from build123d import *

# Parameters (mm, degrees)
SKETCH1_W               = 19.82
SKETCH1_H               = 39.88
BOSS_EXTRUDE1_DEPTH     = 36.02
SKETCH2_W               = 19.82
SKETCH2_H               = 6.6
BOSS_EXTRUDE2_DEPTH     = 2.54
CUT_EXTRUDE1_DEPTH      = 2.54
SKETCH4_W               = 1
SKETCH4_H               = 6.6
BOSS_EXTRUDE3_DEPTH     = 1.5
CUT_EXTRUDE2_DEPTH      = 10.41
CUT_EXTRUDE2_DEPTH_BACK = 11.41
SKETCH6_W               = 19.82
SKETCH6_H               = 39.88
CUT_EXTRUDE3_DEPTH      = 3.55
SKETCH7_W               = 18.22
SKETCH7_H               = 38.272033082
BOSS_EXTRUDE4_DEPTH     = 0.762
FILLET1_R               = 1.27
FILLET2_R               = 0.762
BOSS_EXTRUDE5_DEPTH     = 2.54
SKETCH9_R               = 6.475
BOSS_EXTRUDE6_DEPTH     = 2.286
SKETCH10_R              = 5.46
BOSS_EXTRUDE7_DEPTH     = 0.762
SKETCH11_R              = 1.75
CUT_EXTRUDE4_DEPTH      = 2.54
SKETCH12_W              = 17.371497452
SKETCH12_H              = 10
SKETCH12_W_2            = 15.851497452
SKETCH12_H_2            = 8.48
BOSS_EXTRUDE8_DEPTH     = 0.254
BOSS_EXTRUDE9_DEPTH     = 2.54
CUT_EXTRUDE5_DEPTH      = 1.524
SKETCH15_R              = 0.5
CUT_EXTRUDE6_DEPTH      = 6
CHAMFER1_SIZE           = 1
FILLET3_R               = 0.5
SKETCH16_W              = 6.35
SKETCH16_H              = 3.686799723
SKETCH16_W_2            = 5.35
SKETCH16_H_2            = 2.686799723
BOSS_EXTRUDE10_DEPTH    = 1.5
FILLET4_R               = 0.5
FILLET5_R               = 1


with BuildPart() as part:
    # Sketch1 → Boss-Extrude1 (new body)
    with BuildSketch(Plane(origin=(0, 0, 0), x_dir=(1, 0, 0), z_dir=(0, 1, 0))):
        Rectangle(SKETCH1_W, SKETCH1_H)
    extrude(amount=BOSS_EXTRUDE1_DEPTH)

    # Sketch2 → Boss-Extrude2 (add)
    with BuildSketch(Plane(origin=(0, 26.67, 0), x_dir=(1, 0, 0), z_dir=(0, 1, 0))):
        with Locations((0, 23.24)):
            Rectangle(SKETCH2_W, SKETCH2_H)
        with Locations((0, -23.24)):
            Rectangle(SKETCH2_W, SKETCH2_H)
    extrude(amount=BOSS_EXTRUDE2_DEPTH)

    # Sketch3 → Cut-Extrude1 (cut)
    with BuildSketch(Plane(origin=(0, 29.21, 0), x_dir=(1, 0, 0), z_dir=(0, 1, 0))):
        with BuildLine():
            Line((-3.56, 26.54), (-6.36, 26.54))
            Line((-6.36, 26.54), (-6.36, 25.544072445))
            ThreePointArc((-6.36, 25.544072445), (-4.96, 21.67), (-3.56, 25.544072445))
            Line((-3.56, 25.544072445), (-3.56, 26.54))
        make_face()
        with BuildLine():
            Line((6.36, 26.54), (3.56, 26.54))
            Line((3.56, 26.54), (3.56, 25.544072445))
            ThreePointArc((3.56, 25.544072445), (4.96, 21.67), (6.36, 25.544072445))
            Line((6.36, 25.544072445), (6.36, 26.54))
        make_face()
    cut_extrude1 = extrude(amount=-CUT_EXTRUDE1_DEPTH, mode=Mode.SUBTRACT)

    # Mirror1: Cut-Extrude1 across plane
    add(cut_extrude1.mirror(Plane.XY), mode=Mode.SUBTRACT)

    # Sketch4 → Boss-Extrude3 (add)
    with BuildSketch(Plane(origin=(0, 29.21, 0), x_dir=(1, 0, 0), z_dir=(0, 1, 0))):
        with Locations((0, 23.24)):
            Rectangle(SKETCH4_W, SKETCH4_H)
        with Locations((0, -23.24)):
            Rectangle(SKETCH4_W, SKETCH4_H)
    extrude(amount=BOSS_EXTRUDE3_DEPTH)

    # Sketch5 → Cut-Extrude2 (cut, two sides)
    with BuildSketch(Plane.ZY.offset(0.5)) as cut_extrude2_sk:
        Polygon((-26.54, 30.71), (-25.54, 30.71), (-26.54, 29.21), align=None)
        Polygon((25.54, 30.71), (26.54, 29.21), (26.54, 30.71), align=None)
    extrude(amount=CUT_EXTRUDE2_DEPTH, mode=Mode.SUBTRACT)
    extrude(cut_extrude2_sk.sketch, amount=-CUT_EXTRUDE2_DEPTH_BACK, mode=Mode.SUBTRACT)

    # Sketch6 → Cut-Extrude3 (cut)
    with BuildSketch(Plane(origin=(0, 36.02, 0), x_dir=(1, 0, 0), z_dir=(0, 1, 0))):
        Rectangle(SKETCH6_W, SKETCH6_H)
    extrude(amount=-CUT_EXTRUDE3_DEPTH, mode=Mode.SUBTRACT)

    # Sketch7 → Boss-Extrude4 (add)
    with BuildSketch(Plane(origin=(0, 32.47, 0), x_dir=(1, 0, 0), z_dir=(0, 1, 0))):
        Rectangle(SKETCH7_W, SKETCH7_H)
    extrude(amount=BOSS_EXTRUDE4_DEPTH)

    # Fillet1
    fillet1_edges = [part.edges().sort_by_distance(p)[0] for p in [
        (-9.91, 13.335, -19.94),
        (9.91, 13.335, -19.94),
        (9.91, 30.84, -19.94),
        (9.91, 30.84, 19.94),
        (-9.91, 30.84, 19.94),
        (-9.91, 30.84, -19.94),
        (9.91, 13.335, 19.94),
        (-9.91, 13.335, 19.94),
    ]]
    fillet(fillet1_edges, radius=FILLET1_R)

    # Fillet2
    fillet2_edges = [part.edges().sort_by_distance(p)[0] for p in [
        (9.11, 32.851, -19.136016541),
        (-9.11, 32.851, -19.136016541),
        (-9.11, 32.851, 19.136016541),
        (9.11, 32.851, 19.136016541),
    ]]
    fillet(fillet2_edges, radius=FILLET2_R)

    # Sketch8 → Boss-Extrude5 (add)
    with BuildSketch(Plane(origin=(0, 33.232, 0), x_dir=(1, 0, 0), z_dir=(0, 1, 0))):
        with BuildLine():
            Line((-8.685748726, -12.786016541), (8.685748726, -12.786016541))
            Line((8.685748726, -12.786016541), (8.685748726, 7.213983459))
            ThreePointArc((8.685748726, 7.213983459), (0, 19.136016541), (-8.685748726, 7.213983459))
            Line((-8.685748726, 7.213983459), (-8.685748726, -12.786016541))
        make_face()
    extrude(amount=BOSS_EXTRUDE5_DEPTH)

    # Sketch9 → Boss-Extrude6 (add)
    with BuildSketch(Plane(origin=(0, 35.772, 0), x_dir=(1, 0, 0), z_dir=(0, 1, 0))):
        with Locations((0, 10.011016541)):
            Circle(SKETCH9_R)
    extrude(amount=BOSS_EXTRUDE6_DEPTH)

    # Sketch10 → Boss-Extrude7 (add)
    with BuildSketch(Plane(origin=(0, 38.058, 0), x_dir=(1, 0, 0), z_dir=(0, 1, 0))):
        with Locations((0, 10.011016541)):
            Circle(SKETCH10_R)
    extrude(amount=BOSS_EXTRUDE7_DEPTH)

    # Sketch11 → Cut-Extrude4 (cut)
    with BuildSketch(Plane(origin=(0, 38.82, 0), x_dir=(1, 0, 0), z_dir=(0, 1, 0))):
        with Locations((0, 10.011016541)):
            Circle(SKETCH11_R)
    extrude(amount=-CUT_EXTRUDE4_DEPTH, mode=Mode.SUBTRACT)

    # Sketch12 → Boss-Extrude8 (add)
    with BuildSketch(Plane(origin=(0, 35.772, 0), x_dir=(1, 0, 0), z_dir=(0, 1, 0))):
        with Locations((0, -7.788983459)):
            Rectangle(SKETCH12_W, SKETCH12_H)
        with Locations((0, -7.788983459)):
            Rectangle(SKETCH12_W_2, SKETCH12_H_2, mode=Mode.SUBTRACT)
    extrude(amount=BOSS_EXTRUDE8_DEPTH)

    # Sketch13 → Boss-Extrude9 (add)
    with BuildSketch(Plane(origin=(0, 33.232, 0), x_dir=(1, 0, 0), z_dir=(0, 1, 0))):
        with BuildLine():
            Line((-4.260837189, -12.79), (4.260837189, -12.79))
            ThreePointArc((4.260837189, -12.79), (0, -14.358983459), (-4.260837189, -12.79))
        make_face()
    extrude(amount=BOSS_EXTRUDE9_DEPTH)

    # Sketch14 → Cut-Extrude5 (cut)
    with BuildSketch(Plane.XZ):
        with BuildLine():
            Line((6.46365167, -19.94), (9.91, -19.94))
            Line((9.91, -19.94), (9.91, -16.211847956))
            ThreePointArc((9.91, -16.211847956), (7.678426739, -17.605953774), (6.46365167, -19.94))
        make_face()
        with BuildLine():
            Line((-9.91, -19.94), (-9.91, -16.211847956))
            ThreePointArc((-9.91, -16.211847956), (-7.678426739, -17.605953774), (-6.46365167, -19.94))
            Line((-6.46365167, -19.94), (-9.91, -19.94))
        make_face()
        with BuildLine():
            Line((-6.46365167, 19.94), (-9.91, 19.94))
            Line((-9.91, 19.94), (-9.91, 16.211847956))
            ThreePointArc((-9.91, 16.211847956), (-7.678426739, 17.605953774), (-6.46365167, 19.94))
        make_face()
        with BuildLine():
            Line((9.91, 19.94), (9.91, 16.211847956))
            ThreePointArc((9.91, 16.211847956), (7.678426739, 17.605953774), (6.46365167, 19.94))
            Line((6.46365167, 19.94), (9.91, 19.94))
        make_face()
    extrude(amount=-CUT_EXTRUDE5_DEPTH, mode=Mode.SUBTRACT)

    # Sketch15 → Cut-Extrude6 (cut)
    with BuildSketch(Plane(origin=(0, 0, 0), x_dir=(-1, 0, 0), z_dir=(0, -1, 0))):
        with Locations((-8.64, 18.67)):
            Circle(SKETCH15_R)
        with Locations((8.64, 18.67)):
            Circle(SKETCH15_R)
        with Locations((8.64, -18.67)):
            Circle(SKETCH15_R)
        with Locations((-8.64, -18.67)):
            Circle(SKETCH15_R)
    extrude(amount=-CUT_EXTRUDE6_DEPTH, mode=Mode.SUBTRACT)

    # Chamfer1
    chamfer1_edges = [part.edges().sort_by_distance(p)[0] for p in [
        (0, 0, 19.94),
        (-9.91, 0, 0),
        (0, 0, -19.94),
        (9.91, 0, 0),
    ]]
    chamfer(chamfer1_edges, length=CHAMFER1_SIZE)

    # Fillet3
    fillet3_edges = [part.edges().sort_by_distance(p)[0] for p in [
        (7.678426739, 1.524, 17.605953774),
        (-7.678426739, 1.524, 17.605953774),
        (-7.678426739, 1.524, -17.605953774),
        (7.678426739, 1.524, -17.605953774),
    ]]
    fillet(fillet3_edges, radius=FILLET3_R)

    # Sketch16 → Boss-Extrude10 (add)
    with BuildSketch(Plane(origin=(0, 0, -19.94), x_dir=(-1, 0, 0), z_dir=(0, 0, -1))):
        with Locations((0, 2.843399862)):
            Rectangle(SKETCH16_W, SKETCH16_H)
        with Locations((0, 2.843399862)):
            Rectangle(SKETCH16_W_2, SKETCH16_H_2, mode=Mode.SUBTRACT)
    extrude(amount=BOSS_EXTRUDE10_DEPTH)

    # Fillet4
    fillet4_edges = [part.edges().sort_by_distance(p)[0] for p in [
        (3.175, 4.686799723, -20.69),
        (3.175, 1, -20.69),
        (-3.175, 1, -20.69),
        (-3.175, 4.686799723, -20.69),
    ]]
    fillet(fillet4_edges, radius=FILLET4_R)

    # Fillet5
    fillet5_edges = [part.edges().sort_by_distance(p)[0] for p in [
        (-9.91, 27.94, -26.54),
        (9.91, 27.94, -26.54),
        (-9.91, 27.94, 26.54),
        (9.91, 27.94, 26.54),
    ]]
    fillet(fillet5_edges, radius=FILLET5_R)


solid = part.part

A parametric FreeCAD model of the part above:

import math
import FreeCAD as App
import Part
import Sketcher
from FreeCAD import Vector


def edges_at(feature, points):
    """Names of the edges that pass closest to the given points."""
    edges = feature.Shape.Edges
    near = lambda p: min(range(len(edges)), key=lambda i: edges[i].distToShape(Part.Vertex(*p))[0])
    return sorted({f"Edge{near(p) + 1}" for p in points})


def add_polygon(sketch, points):
    """Adds a closed chain of lines whose ends are joined by coincident constraints."""
    first, n = sketch.GeometryCount, len(points)
    for a, b in zip(points, points[1:] + points[:1]):
        sketch.addGeometry(Part.LineSegment(App.Vector(*a, 0), App.Vector(*b, 0)), False)
    for i in range(n):
        sketch.addConstraint(Sketcher.Constraint("Coincident", first + i, 2, first + (i + 1) % n, 1))

doc = App.newDocument("Part")
params = doc.addObject("Spreadsheet::Sheet", "Params")
for row, (alias, value) in enumerate([
    ("sketch1_width", "19.82 mm"),
    ("sketch1_height", "39.88 mm"),
    ("pad1_length", "36.02 mm"),
    ("sketch2_height", "6.6 mm"),
    ("sketch2_width", "19.82 mm"),
    ("pad2_length", "2.54 mm"),
    ("sketch3_radius", "2.19 mm"),
    ("sketch3_width", "2.8 mm"),
    ("pocket1_length", "2.54 mm"),
    ("sketch4_width", "1 mm"),
    ("sketch4_height", "6.6 mm"),
    ("pad3_length", "1.5 mm"),
    ("sketch5_height", "1 mm"),
    ("sketch5_width", "1.5 mm"),
    ("sketch6_width", "19.82 mm"),
    ("sketch6_height", "39.88 mm"),
    ("pocket3_length", "3.55 mm"),
    ("sketch7_width", "18.22 mm"),
    ("pad4_length", "0.762 mm"),
    ("fillet_radius", "1.27 mm"),
    ("fillet2_radius", "0.762 mm"),
    ("sketch8_height", "20 mm"),
    ("pad5_length", "2.54 mm"),
    ("sketch9_diameter", "12.95 mm"),
    ("pad6_length", "2.286 mm"),
    ("sketch10_diameter", "10.92 mm"),
    ("pad7_length", "0.762 mm"),
    ("sketch11_diameter", "3.5 mm"),
    ("pocket4_length", "2.54 mm"),
    ("sketch12_height", "10 mm"),
    ("sketch12_height2", "8.48 mm"),
    ("pad8_length", "0.254 mm"),
    ("sketch13_radius", "6.57 mm"),
    ("pad9_length", "2.54 mm"),
    ("sketch14_radius", "5 mm"),
    ("pocket5_length", "1.524 mm"),
    ("sketch15_diameter", "1 mm"),
    ("pocket6_length", "6 mm"),
    ("chamfer_size", "1 mm"),
    ("fillet3_radius", "0.5 mm"),
    ("sketch16_width", "6.35 mm"),
    ("sketch16_width2", "5.35 mm"),
    ("pad10_length", "1.5 mm"),
    ("fillet4_radius", "0.5 mm"),
    ("fillet5_radius", "1 mm"),
], start=1):
    params.set(f"A{row}", alias)
    params.set(f"B{row}", "=" + value)
    params.setAlias(f"B{row}", alias)

body = doc.addObject("PartDesign::Body", "Body")

# Sketch on XZ plane
sketch1 = doc.addObject("Sketcher::SketchObject", "Sketch")
body.addObject(sketch1)
sketch1.AttachmentSupport = (doc.XZ_Plane, [""])
sketch1.MapMode = "FlatFace"
add_polygon(sketch1, [(-10, -20), (-10, 20), (10, 20), (10, -20)])  # lines 0-3
sketch1.addConstraint([
    Sketcher.Constraint("Vertical", 0),
    Sketcher.Constraint("Horizontal", 1),
    Sketcher.Constraint("Vertical", 2),
    Sketcher.Constraint("Horizontal", 3),
    Sketcher.Constraint("Symmetric", 0, 2, 2, 2, -1, 1),
    Sketcher.Constraint("DistanceX", 1, 1, 1, 2, 19.82),
    Sketcher.Constraint("DistanceY", 0, 1, 0, 2, 39.88),
])
sketch1.setExpression("Constraints[9]", "Params.sketch1_width")
sketch1.setExpression("Constraints[10]", "Params.sketch1_height")
pad1 = doc.addObject("PartDesign::Pad", "Pad")
body.addObject(pad1)
pad1.Profile = sketch1
pad1.setExpression("Length", "Params.pad1_length")
pad1.Reversed = True

# Sketch on XZ plane
sketch2 = doc.addObject("Sketcher::SketchObject", "Sketch001")
body.addObject(sketch2)
sketch2.AttachmentSupport = (doc.XZ_Plane, [""])
sketch2.MapMode = "FlatFace"
sketch2.AttachmentOffset = App.Placement(Vector(0, 0, -26.67), App.Rotation())
add_polygon(sketch2, [(-10, -27), (-10, -20), (10, -20), (10, -27)])  # lines 0-3
add_polygon(sketch2, [(-10, 20), (-10, 27), (10, 27), (10, 20)])  # lines 4-7
sketch2.addConstraint([
    Sketcher.Constraint("Vertical", 0),
    Sketcher.Constraint("Horizontal", 1),
    Sketcher.Constraint("Vertical", 2),
    Sketcher.Constraint("Horizontal", 3),
    Sketcher.Constraint("Vertical", 4),
    Sketcher.Constraint("Horizontal", 5),
    Sketcher.Constraint("Vertical", 6),
    Sketcher.Constraint("Horizontal", 7),
    Sketcher.Constraint("Symmetric", 2, 2, 4, 2, -1, 1),
    Sketcher.Constraint("Symmetric", 0, 2, 6, 2, -1, 1),
    Sketcher.Constraint("Vertical", 3, 2, 4, 2),
    Sketcher.Constraint("DistanceY", 0, 1, 0, 2, 6.6),
    Sketcher.Constraint("DistanceX", 1, 1, 1, 2, 19.82),
    Sketcher.Constraint("DistanceY", 0, 2, -1, 1, 19.94),
])
sketch2.setExpression("Constraints[19]", "Params.sketch2_height")
sketch2.setExpression("Constraints[20]", "Params.sketch2_width")
pad2 = doc.addObject("PartDesign::Pad", "Pad001")
body.addObject(pad2)
pad2.Profile = sketch2
pad2.setExpression("Length", "Params.pad2_length")
pad2.Reversed = True

# Sketch on XZ plane
sketch3 = doc.addObject("Sketcher::SketchObject", "Sketch002")
body.addObject(sketch3)
sketch3.AttachmentSupport = (doc.XZ_Plane, [""])
sketch3.MapMode = "FlatFace"
sketch3.AttachmentOffset = App.Placement(Vector(0, 0, -29.21), App.Rotation())
sketch3.addGeometry([
    Part.LineSegment(Vector(-3.6, -26.5, 0), Vector(-6.4, -26.5, 0)),  # 0
    Part.LineSegment(Vector(-6.4, -26.5, 0), Vector(-6.4, -25.5, 0)),  # 1
    Part.ArcOfCircle(Part.Circle(Vector(-5, -23.9, 0), Vector(0, 0, 1), 2.2), math.radians(-50), math.radians(230)),  # 2
    Part.LineSegment(Vector(-3.6, -25.5, 0), Vector(-3.6, -26.5, 0)),  # 3
    Part.LineSegment(Vector(6.4, -26.5, 0), Vector(3.6, -26.5, 0)),  # 4
    Part.LineSegment(Vector(3.6, -26.5, 0), Vector(3.6, -25.5, 0)),  # 5
    Part.ArcOfCircle(Part.Circle(Vector(5, -23.9, 0), Vector(0, 0, 1), 2.2), math.radians(-50), math.radians(230)),  # 6
    Part.LineSegment(Vector(6.4, -25.5, 0), Vector(6.4, -26.5, 0)),  # 7
], False)
sketch3.addConstraint([
    Sketcher.Constraint("Coincident", 0, 2, 1, 1),
    Sketcher.Constraint("Coincident", 1, 2, 2, 2),
    Sketcher.Constraint("Coincident", 2, 1, 3, 1),
    Sketcher.Constraint("Coincident", 3, 2, 0, 1),
    Sketcher.Constraint("Coincident", 4, 2, 5, 1),
    Sketcher.Constraint("Coincident", 5, 2, 6, 2),
    Sketcher.Constraint("Coincident", 6, 1, 7, 1),
    Sketcher.Constraint("Coincident", 7, 2, 4, 1),
    Sketcher.Constraint("Horizontal", 0),
    Sketcher.Constraint("Vertical", 1),
    Sketcher.Constraint("Vertical", 3),
    Sketcher.Constraint("Horizontal", 4),
    Sketcher.Constraint("Vertical", 5),
    Sketcher.Constraint("Vertical", 7),
    Sketcher.Constraint("Equal", 2, 6),
    Sketcher.Constraint("Symmetric", 2, 3, 6, 3, -2),
    Sketcher.Constraint("Symmetric", 3, 2, 4, 2, -2),
    Sketcher.Constraint("Horizontal", 1, 2, 2, 1),
    Sketcher.Constraint("Horizontal", 5, 2, 6, 1),
    Sketcher.Constraint("Radius", 2, 2.19),
    Sketcher.Constraint("DistanceX", 0, 2, 0, 1, 2.8),
    Sketcher.Constraint("DistanceX", 2, 3, -1, 1, 4.96),
    Sketcher.Constraint("DistanceY", 2, 3, -1, 1, 23.86),
    Sketcher.Constraint("DistanceY", 0, 2, -1, 1, 26.54),
])
sketch3.setExpression("Constraints[19]", "Params.sketch3_radius")
sketch3.setExpression("Constraints[20]", "Params.sketch3_width")
pocket1 = doc.addObject("PartDesign::Pocket", "Pocket")
body.addObject(pocket1)
pocket1.Profile = sketch3
pocket1.setExpression("Length", "Params.pocket1_length")
pocket1.Reversed = True
doc.recompute()

mirrored = doc.addObject("PartDesign::Mirrored", "Mirrored")
body.addObject(mirrored)
mirrored.Originals = [pocket1]
mirrored.MirrorPlane = (doc.XY_Plane, [""])
body.Tip = mirrored

# Sketch on XZ plane
sketch4 = doc.addObject("Sketcher::SketchObject", "Sketch003")
body.addObject(sketch4)
sketch4.AttachmentSupport = (doc.XZ_Plane, [""])
sketch4.MapMode = "FlatFace"
sketch4.AttachmentOffset = App.Placement(Vector(0, 0, -29.21), App.Rotation())
add_polygon(sketch4, [(-0.5, -26.5), (-0.5, -19.9), (0.5, -19.9), (0.5, -26.5)])  # lines 0-3
add_polygon(sketch4, [(-0.5, 19.9), (-0.5, 26.5), (0.5, 26.5), (0.5, 19.9)])  # lines 4-7
sketch4.addConstraint([
    Sketcher.Constraint("Vertical", 0),
    Sketcher.Constraint("Horizontal", 1),
    Sketcher.Constraint("Vertical", 2),
    Sketcher.Constraint("Horizontal", 3),
    Sketcher.Constraint("Vertical", 4),
    Sketcher.Constraint("Horizontal", 5),
    Sketcher.Constraint("Vertical", 6),
    Sketcher.Constraint("Horizontal", 7),
    Sketcher.Constraint("Symmetric", 2, 2, 4, 2, -1, 1),
    Sketcher.Constraint("Symmetric", 0, 2, 6, 2, -1, 1),
    Sketcher.Constraint("Vertical", 3, 2, 4, 2),
    Sketcher.Constraint("DistanceX", 1, 1, 1, 2, 1.0),
    Sketcher.Constraint("DistanceY", 0, 1, 0, 2, 6.6),
    Sketcher.Constraint("DistanceY", 0, 2, -1, 1, 19.94),
])
sketch4.setExpression("Constraints[19]", "Params.sketch4_width")
sketch4.setExpression("Constraints[20]", "Params.sketch4_height")
pad3 = doc.addObject("PartDesign::Pad", "Pad002")
body.addObject(pad3)
pad3.Profile = sketch4
pad3.setExpression("Length", "Params.pad3_length")
pad3.Reversed = True

# Sketch on YZ plane
sketch5 = doc.addObject("Sketcher::SketchObject", "Sketch004")
body.addObject(sketch5)
sketch5.AttachmentSupport = (doc.YZ_Plane, [""])
sketch5.MapMode = "FlatFace"
sketch5.AttachmentOffset = App.Placement(Vector(0, 0, -0.5), App.Rotation())
add_polygon(sketch5, [(30.7, -25.5), (30.7, -26.5), (29.2, -26.5)])  # lines 0-2
add_polygon(sketch5, [(30.7, 25.5), (29.2, 26.5), (30.7, 26.5)])  # lines 3-5
sketch5.addConstraint([
    Sketcher.Constraint("Vertical", 0),
    Sketcher.Constraint("Horizontal", 1),
    Sketcher.Constraint("Horizontal", 4),
    Sketcher.Constraint("Vertical", 5),
    Sketcher.Constraint("Symmetric", 1, 2, 3, 2, -1),
    Sketcher.Constraint("Symmetric", 2, 2, 5, 2, -1),
    Sketcher.Constraint("DistanceY", 0, 2, 0, 1, 1.0),
    Sketcher.Constraint("DistanceX", 1, 2, 1, 1, 1.5),
    Sketcher.Constraint("DistanceX", -1, 1, 0, 2, 30.71),
    Sketcher.Constraint("DistanceY", 0, 2, -1, 1, 26.54),
])
sketch5.setExpression("Constraints[12]", "Params.sketch5_height")
sketch5.setExpression("Constraints[13]", "Params.sketch5_width")
pocket2 = doc.addObject("PartDesign::Pocket", "Pocket001")
body.addObject(pocket2)
pocket2.Profile = sketch5
pocket2.Type = "ThroughAll"
pocket2.Midplane = True

# Sketch on XZ plane
sketch6 = doc.addObject("Sketcher::SketchObject", "Sketch005")
body.addObject(sketch6)
sketch6.AttachmentSupport = (doc.XZ_Plane, [""])
sketch6.MapMode = "FlatFace"
sketch6.AttachmentOffset = App.Placement(Vector(0, 0, -36.02), App.Rotation())
add_polygon(sketch6, [(-10, -20), (-10, 20), (10, 20), (10, -20)])  # lines 0-3
sketch6.addConstraint([
    Sketcher.Constraint("Vertical", 0),
    Sketcher.Constraint("Horizontal", 1),
    Sketcher.Constraint("Vertical", 2),
    Sketcher.Constraint("Horizontal", 3),
    Sketcher.Constraint("Symmetric", 0, 2, 2, 2, -1, 1),
    Sketcher.Constraint("DistanceX", 1, 1, 1, 2, 19.82),
    Sketcher.Constraint("DistanceY", 0, 1, 0, 2, 39.88),
])
sketch6.setExpression("Constraints[9]", "Params.sketch6_width")
sketch6.setExpression("Constraints[10]", "Params.sketch6_height")
pocket3 = doc.addObject("PartDesign::Pocket", "Pocket002")
body.addObject(pocket3)
pocket3.Profile = sketch6
pocket3.setExpression("Length", "Params.pocket3_length")
pocket3.Reversed = True

# Sketch on XZ plane
sketch7 = doc.addObject("Sketcher::SketchObject", "Sketch006")
body.addObject(sketch7)
sketch7.AttachmentSupport = (doc.XZ_Plane, [""])
sketch7.MapMode = "FlatFace"
sketch7.AttachmentOffset = App.Placement(Vector(0, 0, -32.47), App.Rotation())
add_polygon(sketch7, [(-9, -19), (-9, 19), (9, 19), (9, -19)])  # lines 0-3
sketch7.addConstraint([
    Sketcher.Constraint("Vertical", 0),
    Sketcher.Constraint("Horizontal", 1),
    Sketcher.Constraint("Vertical", 2),
    Sketcher.Constraint("Horizontal", 3),
    Sketcher.Constraint("Symmetric", 0, 2, 2, 2, -1, 1),
    Sketcher.Constraint("DistanceX", 1, 1, 1, 2, 18.22),
    Sketcher.Constraint("DistanceY", 0, 1, 0, 2, 38.272033),
])
sketch7.setExpression("Constraints[9]", "Params.sketch7_width")
pad4 = doc.addObject("PartDesign::Pad", "Pad003")
body.addObject(pad4)
pad4.Profile = sketch7
pad4.setExpression("Length", "Params.pad4_length")
pad4.Reversed = True
doc.recompute()

fillet = doc.addObject("PartDesign::Fillet", "Fillet")
body.addObject(fillet)
fillet.Base = (pad4, edges_at(pad4, [
    (-9.91, 13.335, -19.94),
    (9.91, 13.335, -19.94),
    (9.91, 30.84, -19.94),
    (9.91, 30.84, 19.94),
    (-9.91, 30.84, 19.94),
    (-9.91, 30.84, -19.94),
    (9.91, 13.335, 19.94),
    (-9.91, 13.335, 19.94),
]))
fillet.setExpression("Radius", "Params.fillet_radius")
doc.recompute()

fillet2 = doc.addObject("PartDesign::Fillet", "Fillet001")
body.addObject(fillet2)
fillet2.Base = (fillet, edges_at(fillet, [
    (9.11, 32.851, -19.136),
    (-9.11, 32.851, -19.136),
    (-9.11, 32.851, 19.136),
    (9.11, 32.851, 19.136),
]))
fillet2.setExpression("Radius", "Params.fillet2_radius")

# Sketch on XZ plane
sketch8 = doc.addObject("Sketcher::SketchObject", "Sketch007")
body.addObject(sketch8)
sketch8.AttachmentSupport = (doc.XZ_Plane, [""])
sketch8.MapMode = "FlatFace"
sketch8.AttachmentOffset = App.Placement(Vector(0, 0, -33.232), App.Rotation())
sketch8.addGeometry([
    Part.LineSegment(Vector(-9, 13, 0), Vector(9, 13, 0)),
    Part.LineSegment(Vector(9, 13, 0), Vector(9, -7, 0)),
    Part.ArcOfCircle(Part.Circle(Vector(0, -10, 0), Vector(0, 0, 1), 9), math.radians(162), math.radians(378)),
    Part.LineSegment(Vector(-9, -7, 0), Vector(-9, 13, 0)),
], False)
sketch8.addConstraint([
    Sketcher.Constraint("Coincident", 0, 2, 1, 1),
    Sketcher.Constraint("Coincident", 1, 2, 2, 2),
    Sketcher.Constraint("Coincident", 2, 1, 3, 1),
    Sketcher.Constraint("Coincident", 3, 2, 0, 1),
    Sketcher.Constraint("Horizontal", 0),
    Sketcher.Constraint("Vertical", 1),
    Sketcher.Constraint("Vertical", 3),
    Sketcher.Constraint("Symmetric", 1, 2, 2, 1, -2),
    Sketcher.Constraint("DistanceY", 1, 2, 1, 1, 20.0),
    Sketcher.Constraint("Radius", 2, 9.125),
    Sketcher.Constraint("DistanceX", 0, 1, 0, 2, 17.371497),
    Sketcher.Constraint("DistanceY", 2, 3, -1, 1, 10.011017),
])
sketch8.setExpression("Constraints[8]", "Params.sketch8_height")
pad5 = doc.addObject("PartDesign::Pad", "Pad004")
body.addObject(pad5)
pad5.Profile = sketch8
pad5.setExpression("Length", "Params.pad5_length")
pad5.Reversed = True

# Sketch on XZ plane
sketch9 = doc.addObject("Sketcher::SketchObject", "Sketch008")
body.addObject(sketch9)
sketch9.AttachmentSupport = (doc.XZ_Plane, [""])
sketch9.MapMode = "FlatFace"
sketch9.AttachmentOffset = App.Placement(Vector(0, 0, -35.772), App.Rotation())
sketch9.addGeometry(Part.Circle(Vector(0, -10, 0), Vector(0, 0, 1), 6), False)
sketch9.addConstraint([
    Sketcher.Constraint("PointOnObject", 0, 3, -2),
    Sketcher.Constraint("Diameter", 0, 12.95),
    Sketcher.Constraint("DistanceY", 0, 3, -1, 1, 10.011017),
])
sketch9.setExpression("Constraints[1]", "Params.sketch9_diameter")
pad6 = doc.addObject("PartDesign::Pad", "Pad005")
body.addObject(pad6)
pad6.Profile = sketch9
pad6.setExpression("Length", "Params.pad6_length")
pad6.Reversed = True

# Sketch on XZ plane
sketch10 = doc.addObject("Sketcher::SketchObject", "Sketch009")
body.addObject(sketch10)
sketch10.AttachmentSupport = (doc.XZ_Plane, [""])
sketch10.MapMode = "FlatFace"
sketch10.AttachmentOffset = App.Placement(Vector(0, 0, -38.058), App.Rotation())
sketch10.addGeometry(Part.Circle(Vector(0, -10, 0), Vector(0, 0, 1), 5), False)
sketch10.addConstraint([
    Sketcher.Constraint("PointOnObject", 0, 3, -2),
    Sketcher.Constraint("Diameter", 0, 10.92),
    Sketcher.Constraint("DistanceY", 0, 3, -1, 1, 10.011017),
])
sketch10.setExpression("Constraints[1]", "Params.sketch10_diameter")
pad7 = doc.addObject("PartDesign::Pad", "Pad006")
body.addObject(pad7)
pad7.Profile = sketch10
pad7.setExpression("Length", "Params.pad7_length")
pad7.Reversed = True

# Sketch on XZ plane
sketch11 = doc.addObject("Sketcher::SketchObject", "Sketch010")
body.addObject(sketch11)
sketch11.AttachmentSupport = (doc.XZ_Plane, [""])
sketch11.MapMode = "FlatFace"
sketch11.AttachmentOffset = App.Placement(Vector(0, 0, -38.82), App.Rotation())
sketch11.addGeometry(Part.Circle(Vector(0, -10, 0), Vector(0, 0, 1), 1.8), False)
sketch11.addConstraint([
    Sketcher.Constraint("PointOnObject", 0, 3, -2),
    Sketcher.Constraint("Diameter", 0, 3.5),
    Sketcher.Constraint("DistanceY", 0, 3, -1, 1, 10.011017),
])
sketch11.setExpression("Constraints[1]", "Params.sketch11_diameter")
pocket4 = doc.addObject("PartDesign::Pocket", "Pocket003")
body.addObject(pocket4)
pocket4.Profile = sketch11
pocket4.setExpression("Length", "Params.pocket4_length")
pocket4.Reversed = True

# Sketch on XZ plane
sketch12 = doc.addObject("Sketcher::SketchObject", "Sketch011")
body.addObject(sketch12)
sketch12.AttachmentSupport = (doc.XZ_Plane, [""])
sketch12.MapMode = "FlatFace"
sketch12.AttachmentOffset = App.Placement(Vector(0, 0, -35.772), App.Rotation())
add_polygon(sketch12, [(-9, 3), (-9, 13), (9, 13), (9, 3)])  # lines 0-3
add_polygon(sketch12, [(8, 12), (-8, 12), (-8, 4), (8, 4)])  # lines 4-7
sketch12.addConstraint([
    Sketcher.Constraint("Vertical", 0),
    Sketcher.Constraint("Horizontal", 1),
    Sketcher.Constraint("Vertical", 2),
    Sketcher.Constraint("Horizontal", 3),
    Sketcher.Constraint("Horizontal", 4),
    Sketcher.Constraint("Vertical", 5),
    Sketcher.Constraint("Horizontal", 6),
    Sketcher.Constraint("Vertical", 7),
    Sketcher.Constraint("DistanceY", 0, 1, 0, 2, 10.0),
    Sketcher.Constraint("DistanceY", 5, 2, 5, 1, 8.48),
    Sketcher.Constraint("DistanceX", 0, 2, 4, 2, 0.76),
    Sketcher.Constraint("DistanceY", 4, 2, 0, 2, 0.76),
    Sketcher.Constraint("DistanceX", 6, 2, 2, 2, 0.76),
    Sketcher.Constraint("DistanceX", 1, 1, 1, 2, 17.371497),
    Sketcher.Constraint("DistanceX", 0, 2, -1, 1, 8.685749),
    Sketcher.Constraint("DistanceY", -1, 1, 0, 2, 12.788983),
])
sketch12.setExpression("Constraints[16]", "Params.sketch12_height")
sketch12.setExpression("Constraints[17]", "Params.sketch12_height2")
pad8 = doc.addObject("PartDesign::Pad", "Pad007")
body.addObject(pad8)
pad8.Profile = sketch12
pad8.setExpression("Length", "Params.pad8_length")
pad8.Reversed = True

# Sketch on XZ plane
sketch13 = doc.addObject("Sketcher::SketchObject", "Sketch012")
body.addObject(sketch13)
sketch13.AttachmentSupport = (doc.XZ_Plane, [""])
sketch13.MapMode = "FlatFace"
sketch13.AttachmentOffset = App.Placement(Vector(0, 0, -33.232), App.Rotation())
sketch13.addGeometry([
    Part.LineSegment(Vector(4, 13, 0), Vector(-4, 13, 0)),
    Part.ArcOfCircle(Part.Circle(Vector(0, 8, 0), Vector(0, 0, 1), 7), math.radians(50), math.radians(130)),
], False)
sketch13.addConstraint([
    Sketcher.Constraint("Coincident", 0, 1, 1, 1),
    Sketcher.Constraint("Coincident", 1, 2, 0, 2),
    Sketcher.Constraint("Horizontal", 0),
    Sketcher.Constraint("PointOnObject", 1, 3, -2),
    Sketcher.Constraint("Radius", 1, 6.57),
    Sketcher.Constraint("DistanceY", -1, 1, 0, 1, 12.79),
    Sketcher.Constraint("DistanceX", 0, 2, 0, 1, 8.521674),
])
sketch13.setExpression("Constraints[4]", "Params.sketch13_radius")
pad9 = doc.addObject("PartDesign::Pad", "Pad008")
body.addObject(pad9)
pad9.Profile = sketch13
pad9.setExpression("Length", "Params.pad9_length")
pad9.Reversed = True

# Sketch on XZ plane
sketch14 = doc.addObject("Sketcher::SketchObject", "Sketch013")
body.addObject(sketch14)
sketch14.AttachmentSupport = (doc.XZ_Plane, [""])
sketch14.MapMode = "FlatFace"
sketch14.addGeometry([
    Part.LineSegment(Vector(6.5, -19.9, 0), Vector(9.9, -19.9, 0)),  # 0
    Part.LineSegment(Vector(9.9, -19.9, 0), Vector(9.9, -16.2, 0)),  # 1
    Part.ArcOfCircle(Part.Circle(Vector(11.4, -21, 0), Vector(0, 0, 1), 5), math.radians(107), math.radians(168)),  # 2
    Part.LineSegment(Vector(-9.9, -16.2, 0), Vector(-9.9, -19.9, 0)),  # 3
    Part.LineSegment(Vector(-9.9, -19.9, 0), Vector(-6.5, -19.9, 0)),  # 4
    Part.ArcOfCircle(Part.Circle(Vector(-11.4, -21, 0), Vector(0, 0, 1), 5), math.radians(12), math.radians(73)),  # 5
    Part.LineSegment(Vector(-6.5, 19.9, 0), Vector(-9.9, 19.9, 0)),  # 6
    Part.LineSegment(Vector(-9.9, 19.9, 0), Vector(-9.9, 16.2, 0)),  # 7
    Part.ArcOfCircle(Part.Circle(Vector(-11.4, 21, 0), Vector(0, 0, 1), 5), math.radians(-73), math.radians(-12)),  # 8
    Part.LineSegment(Vector(9.9, 16.2, 0), Vector(9.9, 19.9, 0)),  # 9
    Part.LineSegment(Vector(9.9, 19.9, 0), Vector(6.5, 19.9, 0)),  # 10
    Part.ArcOfCircle(Part.Circle(Vector(11.4, 21, 0), Vector(0, 0, 1), 5), math.radians(-168), math.radians(-107)),  # 11
], False)
sketch14.addConstraint([
    Sketcher.Constraint("Coincident", 0, 2, 1, 1),
    Sketcher.Constraint("Coincident", 1, 2, 2, 1),
    Sketcher.Constraint("Coincident", 2, 2, 0, 1),
    Sketcher.Constraint("Coincident", 3, 2, 4, 1),
    Sketcher.Constraint("Coincident", 4, 2, 5, 1),
    Sketcher.Constraint("Coincident", 5, 2, 3, 1),
    Sketcher.Constraint("Coincident", 6, 2, 7, 1),
    Sketcher.Constraint("Coincident", 7, 2, 8, 1),
    Sketcher.Constraint("Coincident", 8, 2, 6, 1),
    Sketcher.Constraint("Coincident", 9, 2, 10, 1),
    Sketcher.Constraint("Coincident", 10, 2, 11, 1),
    Sketcher.Constraint("Coincident", 11, 2, 9, 1),
    Sketcher.Constraint("Horizontal", 0),
    Sketcher.Constraint("Vertical", 1),
    Sketcher.Constraint("Vertical", 3),
    Sketcher.Constraint("Horizontal", 4),
    Sketcher.Constraint("Horizontal", 6),
    Sketcher.Constraint("Vertical", 7),
    Sketcher.Constraint("Vertical", 9),
    Sketcher.Constraint("Horizontal", 10),
    Sketcher.Constraint("Equal", 2, 5),
    Sketcher.Constraint("Equal", 5, 8),
    Sketcher.Constraint("Equal", 8, 11),
    Sketcher.Constraint("Symmetric", 2, 3, 8, 3, -1, 1),
    Sketcher.Constraint("Symmetric", 5, 3, 11, 3, -1, 1),
    Sketcher.Constraint("Symmetric", 0, 2, 6, 2, -1, 1),
    Sketcher.Constraint("Symmetric", 3, 2, 9, 2, -1, 1),
    Sketcher.Constraint("Symmetric", 2, 3, 5, 3, -2),
    Sketcher.Constraint("Symmetric", 0, 2, 3, 2, -2),
    Sketcher.Constraint("Radius", 2, 5.0),
    Sketcher.Constraint("DistanceY", 2, 3, -1, 1, 21.0),
    Sketcher.Constraint("DistanceX", 5, 3, 2, 3, 22.7),
    Sketcher.Constraint("DistanceX", -1, 1, 0, 2, 9.91),
    Sketcher.Constraint("DistanceY", 0, 2, -1, 1, 19.94),
])
sketch14.setExpression("Constraints[29]", "Params.sketch14_radius")
pocket5 = doc.addObject("PartDesign::Pocket", "Pocket004")
body.addObject(pocket5)
pocket5.Profile = sketch14
pocket5.setExpression("Length", "Params.pocket5_length")

# Sketch on XZ plane
sketch15 = doc.addObject("Sketcher::SketchObject", "Sketch014")
body.addObject(sketch15)
sketch15.AttachmentSupport = (doc.XZ_Plane, [""])
sketch15.MapMode = "FlatFace"
sketch15.addGeometry([
    Part.Circle(Vector(8.6, -18.7, 0), Vector(0, 0, 1), 0.5),
    Part.Circle(Vector(-8.6, -18.7, 0), Vector(0, 0, 1), 0.5),
    Part.Circle(Vector(-8.6, 18.7, 0), Vector(0, 0, 1), 0.5),
    Part.Circle(Vector(8.6, 18.7, 0), Vector(0, 0, 1), 0.5),
], False)
sketch15.addConstraint([
    Sketcher.Constraint("Equal", 0, 1),
    Sketcher.Constraint("Equal", 1, 2),
    Sketcher.Constraint("Equal", 2, 3),
    Sketcher.Constraint("Symmetric", 0, 3, 2, 3, -1, 1),
    Sketcher.Constraint("Symmetric", 1, 3, 3, 3, -1, 1),
    Sketcher.Constraint("Symmetric", 0, 3, 1, 3, -2),
    Sketcher.Constraint("Diameter", 0, 1.0),
    Sketcher.Constraint("DistanceX", -1, 1, 0, 3, 8.64),
    Sketcher.Constraint("DistanceY", 0, 3, -1, 1, 18.67),
])
sketch15.setExpression("Constraints[6]", "Params.sketch15_diameter")
pocket6 = doc.addObject("PartDesign::Pocket", "Pocket005")
body.addObject(pocket6)
pocket6.Profile = sketch15
pocket6.setExpression("Length", "Params.pocket6_length")
doc.recompute()

chamfer = doc.addObject("PartDesign::Chamfer", "Chamfer")
body.addObject(chamfer)
chamfer.Base = (pocket6, edges_at(pocket6, [
    (0, 0, 19.94),
    (-9.91, 0, 0),
    (0, 0, -19.94),
    (9.91, 0, 0),
]))
chamfer.setExpression("Size", "Params.chamfer_size")
doc.recompute()

fillet3 = doc.addObject("PartDesign::Fillet", "Fillet002")
body.addObject(fillet3)
fillet3.Base = (chamfer, edges_at(chamfer, [
    (7.678, 1.524, 17.606),
    (-7.678, 1.524, 17.606),
    (-7.678, 1.524, -17.606),
    (7.678, 1.524, -17.606),
]))
fillet3.setExpression("Radius", "Params.fillet3_radius")

# Sketch on XY plane
sketch16 = doc.addObject("Sketcher::SketchObject", "Sketch015")
body.addObject(sketch16)
sketch16.AttachmentSupport = (doc.XY_Plane, [""])
sketch16.MapMode = "FlatFace"
sketch16.AttachmentOffset = App.Placement(Vector(0, 0, -19.94), App.Rotation())
add_polygon(sketch16, [(3.2, 4.7), (3.2, 1), (-3.2, 1), (-3.2, 4.7)])  # lines 0-3
add_polygon(sketch16, [(-2.7, 1.5), (2.7, 1.5), (2.7, 4.2), (-2.7, 4.2)])  # lines 4-7
sketch16.addConstraint([
    Sketcher.Constraint("Vertical", 0),
    Sketcher.Constraint("Horizontal", 1),
    Sketcher.Constraint("Vertical", 2),
    Sketcher.Constraint("Horizontal", 3),
    Sketcher.Constraint("Horizontal", 4),
    Sketcher.Constraint("Vertical", 5),
    Sketcher.Constraint("Horizontal", 6),
    Sketcher.Constraint("Vertical", 7),
    Sketcher.Constraint("DistanceY", -1, 1, 0, 2, 1.0),
    Sketcher.Constraint("DistanceX", 1, 2, 1, 1, 6.35),
    Sketcher.Constraint("DistanceX", 4, 1, 4, 2, 5.35),
    Sketcher.Constraint("DistanceY", -1, 1, 4, 2, 1.5),
    Sketcher.Constraint("DistanceX", 4, 2, 0, 2, 0.5),
    Sketcher.Constraint("DistanceY", 5, 2, 3, 2, 0.5),
    Sketcher.Constraint("DistanceY", 0, 2, 0, 1, 3.6868),
    Sketcher.Constraint("DistanceX", -1, 1, 0, 2, 3.175),
])
sketch16.setExpression("Constraints[17]", "Params.sketch16_width")
sketch16.setExpression("Constraints[18]", "Params.sketch16_width2")
pad10 = doc.addObject("PartDesign::Pad", "Pad009")
body.addObject(pad10)
pad10.Profile = sketch16
pad10.setExpression("Length", "Params.pad10_length")
pad10.Reversed = True
doc.recompute()

fillet4 = doc.addObject("PartDesign::Fillet", "Fillet003")
body.addObject(fillet4)
fillet4.Base = (pad10, edges_at(pad10, [
    (3.175, 4.687, -20.69),
    (3.175, 1, -20.69),
    (-3.175, 1, -20.69),
    (-3.175, 4.687, -20.69),
]))
fillet4.setExpression("Radius", "Params.fillet4_radius")
doc.recompute()

fillet5 = doc.addObject("PartDesign::Fillet", "Fillet004")
body.addObject(fillet5)
fillet5.Base = (fillet4, edges_at(fillet4, [
    (-9.91, 27.94, -26.54),
    (9.91, 27.94, -26.54),
    (-9.91, 27.94, 26.54),
    (9.91, 27.94, 26.54),
]))
fillet5.setExpression("Radius", "Params.fillet5_radius")

doc.recompute()
